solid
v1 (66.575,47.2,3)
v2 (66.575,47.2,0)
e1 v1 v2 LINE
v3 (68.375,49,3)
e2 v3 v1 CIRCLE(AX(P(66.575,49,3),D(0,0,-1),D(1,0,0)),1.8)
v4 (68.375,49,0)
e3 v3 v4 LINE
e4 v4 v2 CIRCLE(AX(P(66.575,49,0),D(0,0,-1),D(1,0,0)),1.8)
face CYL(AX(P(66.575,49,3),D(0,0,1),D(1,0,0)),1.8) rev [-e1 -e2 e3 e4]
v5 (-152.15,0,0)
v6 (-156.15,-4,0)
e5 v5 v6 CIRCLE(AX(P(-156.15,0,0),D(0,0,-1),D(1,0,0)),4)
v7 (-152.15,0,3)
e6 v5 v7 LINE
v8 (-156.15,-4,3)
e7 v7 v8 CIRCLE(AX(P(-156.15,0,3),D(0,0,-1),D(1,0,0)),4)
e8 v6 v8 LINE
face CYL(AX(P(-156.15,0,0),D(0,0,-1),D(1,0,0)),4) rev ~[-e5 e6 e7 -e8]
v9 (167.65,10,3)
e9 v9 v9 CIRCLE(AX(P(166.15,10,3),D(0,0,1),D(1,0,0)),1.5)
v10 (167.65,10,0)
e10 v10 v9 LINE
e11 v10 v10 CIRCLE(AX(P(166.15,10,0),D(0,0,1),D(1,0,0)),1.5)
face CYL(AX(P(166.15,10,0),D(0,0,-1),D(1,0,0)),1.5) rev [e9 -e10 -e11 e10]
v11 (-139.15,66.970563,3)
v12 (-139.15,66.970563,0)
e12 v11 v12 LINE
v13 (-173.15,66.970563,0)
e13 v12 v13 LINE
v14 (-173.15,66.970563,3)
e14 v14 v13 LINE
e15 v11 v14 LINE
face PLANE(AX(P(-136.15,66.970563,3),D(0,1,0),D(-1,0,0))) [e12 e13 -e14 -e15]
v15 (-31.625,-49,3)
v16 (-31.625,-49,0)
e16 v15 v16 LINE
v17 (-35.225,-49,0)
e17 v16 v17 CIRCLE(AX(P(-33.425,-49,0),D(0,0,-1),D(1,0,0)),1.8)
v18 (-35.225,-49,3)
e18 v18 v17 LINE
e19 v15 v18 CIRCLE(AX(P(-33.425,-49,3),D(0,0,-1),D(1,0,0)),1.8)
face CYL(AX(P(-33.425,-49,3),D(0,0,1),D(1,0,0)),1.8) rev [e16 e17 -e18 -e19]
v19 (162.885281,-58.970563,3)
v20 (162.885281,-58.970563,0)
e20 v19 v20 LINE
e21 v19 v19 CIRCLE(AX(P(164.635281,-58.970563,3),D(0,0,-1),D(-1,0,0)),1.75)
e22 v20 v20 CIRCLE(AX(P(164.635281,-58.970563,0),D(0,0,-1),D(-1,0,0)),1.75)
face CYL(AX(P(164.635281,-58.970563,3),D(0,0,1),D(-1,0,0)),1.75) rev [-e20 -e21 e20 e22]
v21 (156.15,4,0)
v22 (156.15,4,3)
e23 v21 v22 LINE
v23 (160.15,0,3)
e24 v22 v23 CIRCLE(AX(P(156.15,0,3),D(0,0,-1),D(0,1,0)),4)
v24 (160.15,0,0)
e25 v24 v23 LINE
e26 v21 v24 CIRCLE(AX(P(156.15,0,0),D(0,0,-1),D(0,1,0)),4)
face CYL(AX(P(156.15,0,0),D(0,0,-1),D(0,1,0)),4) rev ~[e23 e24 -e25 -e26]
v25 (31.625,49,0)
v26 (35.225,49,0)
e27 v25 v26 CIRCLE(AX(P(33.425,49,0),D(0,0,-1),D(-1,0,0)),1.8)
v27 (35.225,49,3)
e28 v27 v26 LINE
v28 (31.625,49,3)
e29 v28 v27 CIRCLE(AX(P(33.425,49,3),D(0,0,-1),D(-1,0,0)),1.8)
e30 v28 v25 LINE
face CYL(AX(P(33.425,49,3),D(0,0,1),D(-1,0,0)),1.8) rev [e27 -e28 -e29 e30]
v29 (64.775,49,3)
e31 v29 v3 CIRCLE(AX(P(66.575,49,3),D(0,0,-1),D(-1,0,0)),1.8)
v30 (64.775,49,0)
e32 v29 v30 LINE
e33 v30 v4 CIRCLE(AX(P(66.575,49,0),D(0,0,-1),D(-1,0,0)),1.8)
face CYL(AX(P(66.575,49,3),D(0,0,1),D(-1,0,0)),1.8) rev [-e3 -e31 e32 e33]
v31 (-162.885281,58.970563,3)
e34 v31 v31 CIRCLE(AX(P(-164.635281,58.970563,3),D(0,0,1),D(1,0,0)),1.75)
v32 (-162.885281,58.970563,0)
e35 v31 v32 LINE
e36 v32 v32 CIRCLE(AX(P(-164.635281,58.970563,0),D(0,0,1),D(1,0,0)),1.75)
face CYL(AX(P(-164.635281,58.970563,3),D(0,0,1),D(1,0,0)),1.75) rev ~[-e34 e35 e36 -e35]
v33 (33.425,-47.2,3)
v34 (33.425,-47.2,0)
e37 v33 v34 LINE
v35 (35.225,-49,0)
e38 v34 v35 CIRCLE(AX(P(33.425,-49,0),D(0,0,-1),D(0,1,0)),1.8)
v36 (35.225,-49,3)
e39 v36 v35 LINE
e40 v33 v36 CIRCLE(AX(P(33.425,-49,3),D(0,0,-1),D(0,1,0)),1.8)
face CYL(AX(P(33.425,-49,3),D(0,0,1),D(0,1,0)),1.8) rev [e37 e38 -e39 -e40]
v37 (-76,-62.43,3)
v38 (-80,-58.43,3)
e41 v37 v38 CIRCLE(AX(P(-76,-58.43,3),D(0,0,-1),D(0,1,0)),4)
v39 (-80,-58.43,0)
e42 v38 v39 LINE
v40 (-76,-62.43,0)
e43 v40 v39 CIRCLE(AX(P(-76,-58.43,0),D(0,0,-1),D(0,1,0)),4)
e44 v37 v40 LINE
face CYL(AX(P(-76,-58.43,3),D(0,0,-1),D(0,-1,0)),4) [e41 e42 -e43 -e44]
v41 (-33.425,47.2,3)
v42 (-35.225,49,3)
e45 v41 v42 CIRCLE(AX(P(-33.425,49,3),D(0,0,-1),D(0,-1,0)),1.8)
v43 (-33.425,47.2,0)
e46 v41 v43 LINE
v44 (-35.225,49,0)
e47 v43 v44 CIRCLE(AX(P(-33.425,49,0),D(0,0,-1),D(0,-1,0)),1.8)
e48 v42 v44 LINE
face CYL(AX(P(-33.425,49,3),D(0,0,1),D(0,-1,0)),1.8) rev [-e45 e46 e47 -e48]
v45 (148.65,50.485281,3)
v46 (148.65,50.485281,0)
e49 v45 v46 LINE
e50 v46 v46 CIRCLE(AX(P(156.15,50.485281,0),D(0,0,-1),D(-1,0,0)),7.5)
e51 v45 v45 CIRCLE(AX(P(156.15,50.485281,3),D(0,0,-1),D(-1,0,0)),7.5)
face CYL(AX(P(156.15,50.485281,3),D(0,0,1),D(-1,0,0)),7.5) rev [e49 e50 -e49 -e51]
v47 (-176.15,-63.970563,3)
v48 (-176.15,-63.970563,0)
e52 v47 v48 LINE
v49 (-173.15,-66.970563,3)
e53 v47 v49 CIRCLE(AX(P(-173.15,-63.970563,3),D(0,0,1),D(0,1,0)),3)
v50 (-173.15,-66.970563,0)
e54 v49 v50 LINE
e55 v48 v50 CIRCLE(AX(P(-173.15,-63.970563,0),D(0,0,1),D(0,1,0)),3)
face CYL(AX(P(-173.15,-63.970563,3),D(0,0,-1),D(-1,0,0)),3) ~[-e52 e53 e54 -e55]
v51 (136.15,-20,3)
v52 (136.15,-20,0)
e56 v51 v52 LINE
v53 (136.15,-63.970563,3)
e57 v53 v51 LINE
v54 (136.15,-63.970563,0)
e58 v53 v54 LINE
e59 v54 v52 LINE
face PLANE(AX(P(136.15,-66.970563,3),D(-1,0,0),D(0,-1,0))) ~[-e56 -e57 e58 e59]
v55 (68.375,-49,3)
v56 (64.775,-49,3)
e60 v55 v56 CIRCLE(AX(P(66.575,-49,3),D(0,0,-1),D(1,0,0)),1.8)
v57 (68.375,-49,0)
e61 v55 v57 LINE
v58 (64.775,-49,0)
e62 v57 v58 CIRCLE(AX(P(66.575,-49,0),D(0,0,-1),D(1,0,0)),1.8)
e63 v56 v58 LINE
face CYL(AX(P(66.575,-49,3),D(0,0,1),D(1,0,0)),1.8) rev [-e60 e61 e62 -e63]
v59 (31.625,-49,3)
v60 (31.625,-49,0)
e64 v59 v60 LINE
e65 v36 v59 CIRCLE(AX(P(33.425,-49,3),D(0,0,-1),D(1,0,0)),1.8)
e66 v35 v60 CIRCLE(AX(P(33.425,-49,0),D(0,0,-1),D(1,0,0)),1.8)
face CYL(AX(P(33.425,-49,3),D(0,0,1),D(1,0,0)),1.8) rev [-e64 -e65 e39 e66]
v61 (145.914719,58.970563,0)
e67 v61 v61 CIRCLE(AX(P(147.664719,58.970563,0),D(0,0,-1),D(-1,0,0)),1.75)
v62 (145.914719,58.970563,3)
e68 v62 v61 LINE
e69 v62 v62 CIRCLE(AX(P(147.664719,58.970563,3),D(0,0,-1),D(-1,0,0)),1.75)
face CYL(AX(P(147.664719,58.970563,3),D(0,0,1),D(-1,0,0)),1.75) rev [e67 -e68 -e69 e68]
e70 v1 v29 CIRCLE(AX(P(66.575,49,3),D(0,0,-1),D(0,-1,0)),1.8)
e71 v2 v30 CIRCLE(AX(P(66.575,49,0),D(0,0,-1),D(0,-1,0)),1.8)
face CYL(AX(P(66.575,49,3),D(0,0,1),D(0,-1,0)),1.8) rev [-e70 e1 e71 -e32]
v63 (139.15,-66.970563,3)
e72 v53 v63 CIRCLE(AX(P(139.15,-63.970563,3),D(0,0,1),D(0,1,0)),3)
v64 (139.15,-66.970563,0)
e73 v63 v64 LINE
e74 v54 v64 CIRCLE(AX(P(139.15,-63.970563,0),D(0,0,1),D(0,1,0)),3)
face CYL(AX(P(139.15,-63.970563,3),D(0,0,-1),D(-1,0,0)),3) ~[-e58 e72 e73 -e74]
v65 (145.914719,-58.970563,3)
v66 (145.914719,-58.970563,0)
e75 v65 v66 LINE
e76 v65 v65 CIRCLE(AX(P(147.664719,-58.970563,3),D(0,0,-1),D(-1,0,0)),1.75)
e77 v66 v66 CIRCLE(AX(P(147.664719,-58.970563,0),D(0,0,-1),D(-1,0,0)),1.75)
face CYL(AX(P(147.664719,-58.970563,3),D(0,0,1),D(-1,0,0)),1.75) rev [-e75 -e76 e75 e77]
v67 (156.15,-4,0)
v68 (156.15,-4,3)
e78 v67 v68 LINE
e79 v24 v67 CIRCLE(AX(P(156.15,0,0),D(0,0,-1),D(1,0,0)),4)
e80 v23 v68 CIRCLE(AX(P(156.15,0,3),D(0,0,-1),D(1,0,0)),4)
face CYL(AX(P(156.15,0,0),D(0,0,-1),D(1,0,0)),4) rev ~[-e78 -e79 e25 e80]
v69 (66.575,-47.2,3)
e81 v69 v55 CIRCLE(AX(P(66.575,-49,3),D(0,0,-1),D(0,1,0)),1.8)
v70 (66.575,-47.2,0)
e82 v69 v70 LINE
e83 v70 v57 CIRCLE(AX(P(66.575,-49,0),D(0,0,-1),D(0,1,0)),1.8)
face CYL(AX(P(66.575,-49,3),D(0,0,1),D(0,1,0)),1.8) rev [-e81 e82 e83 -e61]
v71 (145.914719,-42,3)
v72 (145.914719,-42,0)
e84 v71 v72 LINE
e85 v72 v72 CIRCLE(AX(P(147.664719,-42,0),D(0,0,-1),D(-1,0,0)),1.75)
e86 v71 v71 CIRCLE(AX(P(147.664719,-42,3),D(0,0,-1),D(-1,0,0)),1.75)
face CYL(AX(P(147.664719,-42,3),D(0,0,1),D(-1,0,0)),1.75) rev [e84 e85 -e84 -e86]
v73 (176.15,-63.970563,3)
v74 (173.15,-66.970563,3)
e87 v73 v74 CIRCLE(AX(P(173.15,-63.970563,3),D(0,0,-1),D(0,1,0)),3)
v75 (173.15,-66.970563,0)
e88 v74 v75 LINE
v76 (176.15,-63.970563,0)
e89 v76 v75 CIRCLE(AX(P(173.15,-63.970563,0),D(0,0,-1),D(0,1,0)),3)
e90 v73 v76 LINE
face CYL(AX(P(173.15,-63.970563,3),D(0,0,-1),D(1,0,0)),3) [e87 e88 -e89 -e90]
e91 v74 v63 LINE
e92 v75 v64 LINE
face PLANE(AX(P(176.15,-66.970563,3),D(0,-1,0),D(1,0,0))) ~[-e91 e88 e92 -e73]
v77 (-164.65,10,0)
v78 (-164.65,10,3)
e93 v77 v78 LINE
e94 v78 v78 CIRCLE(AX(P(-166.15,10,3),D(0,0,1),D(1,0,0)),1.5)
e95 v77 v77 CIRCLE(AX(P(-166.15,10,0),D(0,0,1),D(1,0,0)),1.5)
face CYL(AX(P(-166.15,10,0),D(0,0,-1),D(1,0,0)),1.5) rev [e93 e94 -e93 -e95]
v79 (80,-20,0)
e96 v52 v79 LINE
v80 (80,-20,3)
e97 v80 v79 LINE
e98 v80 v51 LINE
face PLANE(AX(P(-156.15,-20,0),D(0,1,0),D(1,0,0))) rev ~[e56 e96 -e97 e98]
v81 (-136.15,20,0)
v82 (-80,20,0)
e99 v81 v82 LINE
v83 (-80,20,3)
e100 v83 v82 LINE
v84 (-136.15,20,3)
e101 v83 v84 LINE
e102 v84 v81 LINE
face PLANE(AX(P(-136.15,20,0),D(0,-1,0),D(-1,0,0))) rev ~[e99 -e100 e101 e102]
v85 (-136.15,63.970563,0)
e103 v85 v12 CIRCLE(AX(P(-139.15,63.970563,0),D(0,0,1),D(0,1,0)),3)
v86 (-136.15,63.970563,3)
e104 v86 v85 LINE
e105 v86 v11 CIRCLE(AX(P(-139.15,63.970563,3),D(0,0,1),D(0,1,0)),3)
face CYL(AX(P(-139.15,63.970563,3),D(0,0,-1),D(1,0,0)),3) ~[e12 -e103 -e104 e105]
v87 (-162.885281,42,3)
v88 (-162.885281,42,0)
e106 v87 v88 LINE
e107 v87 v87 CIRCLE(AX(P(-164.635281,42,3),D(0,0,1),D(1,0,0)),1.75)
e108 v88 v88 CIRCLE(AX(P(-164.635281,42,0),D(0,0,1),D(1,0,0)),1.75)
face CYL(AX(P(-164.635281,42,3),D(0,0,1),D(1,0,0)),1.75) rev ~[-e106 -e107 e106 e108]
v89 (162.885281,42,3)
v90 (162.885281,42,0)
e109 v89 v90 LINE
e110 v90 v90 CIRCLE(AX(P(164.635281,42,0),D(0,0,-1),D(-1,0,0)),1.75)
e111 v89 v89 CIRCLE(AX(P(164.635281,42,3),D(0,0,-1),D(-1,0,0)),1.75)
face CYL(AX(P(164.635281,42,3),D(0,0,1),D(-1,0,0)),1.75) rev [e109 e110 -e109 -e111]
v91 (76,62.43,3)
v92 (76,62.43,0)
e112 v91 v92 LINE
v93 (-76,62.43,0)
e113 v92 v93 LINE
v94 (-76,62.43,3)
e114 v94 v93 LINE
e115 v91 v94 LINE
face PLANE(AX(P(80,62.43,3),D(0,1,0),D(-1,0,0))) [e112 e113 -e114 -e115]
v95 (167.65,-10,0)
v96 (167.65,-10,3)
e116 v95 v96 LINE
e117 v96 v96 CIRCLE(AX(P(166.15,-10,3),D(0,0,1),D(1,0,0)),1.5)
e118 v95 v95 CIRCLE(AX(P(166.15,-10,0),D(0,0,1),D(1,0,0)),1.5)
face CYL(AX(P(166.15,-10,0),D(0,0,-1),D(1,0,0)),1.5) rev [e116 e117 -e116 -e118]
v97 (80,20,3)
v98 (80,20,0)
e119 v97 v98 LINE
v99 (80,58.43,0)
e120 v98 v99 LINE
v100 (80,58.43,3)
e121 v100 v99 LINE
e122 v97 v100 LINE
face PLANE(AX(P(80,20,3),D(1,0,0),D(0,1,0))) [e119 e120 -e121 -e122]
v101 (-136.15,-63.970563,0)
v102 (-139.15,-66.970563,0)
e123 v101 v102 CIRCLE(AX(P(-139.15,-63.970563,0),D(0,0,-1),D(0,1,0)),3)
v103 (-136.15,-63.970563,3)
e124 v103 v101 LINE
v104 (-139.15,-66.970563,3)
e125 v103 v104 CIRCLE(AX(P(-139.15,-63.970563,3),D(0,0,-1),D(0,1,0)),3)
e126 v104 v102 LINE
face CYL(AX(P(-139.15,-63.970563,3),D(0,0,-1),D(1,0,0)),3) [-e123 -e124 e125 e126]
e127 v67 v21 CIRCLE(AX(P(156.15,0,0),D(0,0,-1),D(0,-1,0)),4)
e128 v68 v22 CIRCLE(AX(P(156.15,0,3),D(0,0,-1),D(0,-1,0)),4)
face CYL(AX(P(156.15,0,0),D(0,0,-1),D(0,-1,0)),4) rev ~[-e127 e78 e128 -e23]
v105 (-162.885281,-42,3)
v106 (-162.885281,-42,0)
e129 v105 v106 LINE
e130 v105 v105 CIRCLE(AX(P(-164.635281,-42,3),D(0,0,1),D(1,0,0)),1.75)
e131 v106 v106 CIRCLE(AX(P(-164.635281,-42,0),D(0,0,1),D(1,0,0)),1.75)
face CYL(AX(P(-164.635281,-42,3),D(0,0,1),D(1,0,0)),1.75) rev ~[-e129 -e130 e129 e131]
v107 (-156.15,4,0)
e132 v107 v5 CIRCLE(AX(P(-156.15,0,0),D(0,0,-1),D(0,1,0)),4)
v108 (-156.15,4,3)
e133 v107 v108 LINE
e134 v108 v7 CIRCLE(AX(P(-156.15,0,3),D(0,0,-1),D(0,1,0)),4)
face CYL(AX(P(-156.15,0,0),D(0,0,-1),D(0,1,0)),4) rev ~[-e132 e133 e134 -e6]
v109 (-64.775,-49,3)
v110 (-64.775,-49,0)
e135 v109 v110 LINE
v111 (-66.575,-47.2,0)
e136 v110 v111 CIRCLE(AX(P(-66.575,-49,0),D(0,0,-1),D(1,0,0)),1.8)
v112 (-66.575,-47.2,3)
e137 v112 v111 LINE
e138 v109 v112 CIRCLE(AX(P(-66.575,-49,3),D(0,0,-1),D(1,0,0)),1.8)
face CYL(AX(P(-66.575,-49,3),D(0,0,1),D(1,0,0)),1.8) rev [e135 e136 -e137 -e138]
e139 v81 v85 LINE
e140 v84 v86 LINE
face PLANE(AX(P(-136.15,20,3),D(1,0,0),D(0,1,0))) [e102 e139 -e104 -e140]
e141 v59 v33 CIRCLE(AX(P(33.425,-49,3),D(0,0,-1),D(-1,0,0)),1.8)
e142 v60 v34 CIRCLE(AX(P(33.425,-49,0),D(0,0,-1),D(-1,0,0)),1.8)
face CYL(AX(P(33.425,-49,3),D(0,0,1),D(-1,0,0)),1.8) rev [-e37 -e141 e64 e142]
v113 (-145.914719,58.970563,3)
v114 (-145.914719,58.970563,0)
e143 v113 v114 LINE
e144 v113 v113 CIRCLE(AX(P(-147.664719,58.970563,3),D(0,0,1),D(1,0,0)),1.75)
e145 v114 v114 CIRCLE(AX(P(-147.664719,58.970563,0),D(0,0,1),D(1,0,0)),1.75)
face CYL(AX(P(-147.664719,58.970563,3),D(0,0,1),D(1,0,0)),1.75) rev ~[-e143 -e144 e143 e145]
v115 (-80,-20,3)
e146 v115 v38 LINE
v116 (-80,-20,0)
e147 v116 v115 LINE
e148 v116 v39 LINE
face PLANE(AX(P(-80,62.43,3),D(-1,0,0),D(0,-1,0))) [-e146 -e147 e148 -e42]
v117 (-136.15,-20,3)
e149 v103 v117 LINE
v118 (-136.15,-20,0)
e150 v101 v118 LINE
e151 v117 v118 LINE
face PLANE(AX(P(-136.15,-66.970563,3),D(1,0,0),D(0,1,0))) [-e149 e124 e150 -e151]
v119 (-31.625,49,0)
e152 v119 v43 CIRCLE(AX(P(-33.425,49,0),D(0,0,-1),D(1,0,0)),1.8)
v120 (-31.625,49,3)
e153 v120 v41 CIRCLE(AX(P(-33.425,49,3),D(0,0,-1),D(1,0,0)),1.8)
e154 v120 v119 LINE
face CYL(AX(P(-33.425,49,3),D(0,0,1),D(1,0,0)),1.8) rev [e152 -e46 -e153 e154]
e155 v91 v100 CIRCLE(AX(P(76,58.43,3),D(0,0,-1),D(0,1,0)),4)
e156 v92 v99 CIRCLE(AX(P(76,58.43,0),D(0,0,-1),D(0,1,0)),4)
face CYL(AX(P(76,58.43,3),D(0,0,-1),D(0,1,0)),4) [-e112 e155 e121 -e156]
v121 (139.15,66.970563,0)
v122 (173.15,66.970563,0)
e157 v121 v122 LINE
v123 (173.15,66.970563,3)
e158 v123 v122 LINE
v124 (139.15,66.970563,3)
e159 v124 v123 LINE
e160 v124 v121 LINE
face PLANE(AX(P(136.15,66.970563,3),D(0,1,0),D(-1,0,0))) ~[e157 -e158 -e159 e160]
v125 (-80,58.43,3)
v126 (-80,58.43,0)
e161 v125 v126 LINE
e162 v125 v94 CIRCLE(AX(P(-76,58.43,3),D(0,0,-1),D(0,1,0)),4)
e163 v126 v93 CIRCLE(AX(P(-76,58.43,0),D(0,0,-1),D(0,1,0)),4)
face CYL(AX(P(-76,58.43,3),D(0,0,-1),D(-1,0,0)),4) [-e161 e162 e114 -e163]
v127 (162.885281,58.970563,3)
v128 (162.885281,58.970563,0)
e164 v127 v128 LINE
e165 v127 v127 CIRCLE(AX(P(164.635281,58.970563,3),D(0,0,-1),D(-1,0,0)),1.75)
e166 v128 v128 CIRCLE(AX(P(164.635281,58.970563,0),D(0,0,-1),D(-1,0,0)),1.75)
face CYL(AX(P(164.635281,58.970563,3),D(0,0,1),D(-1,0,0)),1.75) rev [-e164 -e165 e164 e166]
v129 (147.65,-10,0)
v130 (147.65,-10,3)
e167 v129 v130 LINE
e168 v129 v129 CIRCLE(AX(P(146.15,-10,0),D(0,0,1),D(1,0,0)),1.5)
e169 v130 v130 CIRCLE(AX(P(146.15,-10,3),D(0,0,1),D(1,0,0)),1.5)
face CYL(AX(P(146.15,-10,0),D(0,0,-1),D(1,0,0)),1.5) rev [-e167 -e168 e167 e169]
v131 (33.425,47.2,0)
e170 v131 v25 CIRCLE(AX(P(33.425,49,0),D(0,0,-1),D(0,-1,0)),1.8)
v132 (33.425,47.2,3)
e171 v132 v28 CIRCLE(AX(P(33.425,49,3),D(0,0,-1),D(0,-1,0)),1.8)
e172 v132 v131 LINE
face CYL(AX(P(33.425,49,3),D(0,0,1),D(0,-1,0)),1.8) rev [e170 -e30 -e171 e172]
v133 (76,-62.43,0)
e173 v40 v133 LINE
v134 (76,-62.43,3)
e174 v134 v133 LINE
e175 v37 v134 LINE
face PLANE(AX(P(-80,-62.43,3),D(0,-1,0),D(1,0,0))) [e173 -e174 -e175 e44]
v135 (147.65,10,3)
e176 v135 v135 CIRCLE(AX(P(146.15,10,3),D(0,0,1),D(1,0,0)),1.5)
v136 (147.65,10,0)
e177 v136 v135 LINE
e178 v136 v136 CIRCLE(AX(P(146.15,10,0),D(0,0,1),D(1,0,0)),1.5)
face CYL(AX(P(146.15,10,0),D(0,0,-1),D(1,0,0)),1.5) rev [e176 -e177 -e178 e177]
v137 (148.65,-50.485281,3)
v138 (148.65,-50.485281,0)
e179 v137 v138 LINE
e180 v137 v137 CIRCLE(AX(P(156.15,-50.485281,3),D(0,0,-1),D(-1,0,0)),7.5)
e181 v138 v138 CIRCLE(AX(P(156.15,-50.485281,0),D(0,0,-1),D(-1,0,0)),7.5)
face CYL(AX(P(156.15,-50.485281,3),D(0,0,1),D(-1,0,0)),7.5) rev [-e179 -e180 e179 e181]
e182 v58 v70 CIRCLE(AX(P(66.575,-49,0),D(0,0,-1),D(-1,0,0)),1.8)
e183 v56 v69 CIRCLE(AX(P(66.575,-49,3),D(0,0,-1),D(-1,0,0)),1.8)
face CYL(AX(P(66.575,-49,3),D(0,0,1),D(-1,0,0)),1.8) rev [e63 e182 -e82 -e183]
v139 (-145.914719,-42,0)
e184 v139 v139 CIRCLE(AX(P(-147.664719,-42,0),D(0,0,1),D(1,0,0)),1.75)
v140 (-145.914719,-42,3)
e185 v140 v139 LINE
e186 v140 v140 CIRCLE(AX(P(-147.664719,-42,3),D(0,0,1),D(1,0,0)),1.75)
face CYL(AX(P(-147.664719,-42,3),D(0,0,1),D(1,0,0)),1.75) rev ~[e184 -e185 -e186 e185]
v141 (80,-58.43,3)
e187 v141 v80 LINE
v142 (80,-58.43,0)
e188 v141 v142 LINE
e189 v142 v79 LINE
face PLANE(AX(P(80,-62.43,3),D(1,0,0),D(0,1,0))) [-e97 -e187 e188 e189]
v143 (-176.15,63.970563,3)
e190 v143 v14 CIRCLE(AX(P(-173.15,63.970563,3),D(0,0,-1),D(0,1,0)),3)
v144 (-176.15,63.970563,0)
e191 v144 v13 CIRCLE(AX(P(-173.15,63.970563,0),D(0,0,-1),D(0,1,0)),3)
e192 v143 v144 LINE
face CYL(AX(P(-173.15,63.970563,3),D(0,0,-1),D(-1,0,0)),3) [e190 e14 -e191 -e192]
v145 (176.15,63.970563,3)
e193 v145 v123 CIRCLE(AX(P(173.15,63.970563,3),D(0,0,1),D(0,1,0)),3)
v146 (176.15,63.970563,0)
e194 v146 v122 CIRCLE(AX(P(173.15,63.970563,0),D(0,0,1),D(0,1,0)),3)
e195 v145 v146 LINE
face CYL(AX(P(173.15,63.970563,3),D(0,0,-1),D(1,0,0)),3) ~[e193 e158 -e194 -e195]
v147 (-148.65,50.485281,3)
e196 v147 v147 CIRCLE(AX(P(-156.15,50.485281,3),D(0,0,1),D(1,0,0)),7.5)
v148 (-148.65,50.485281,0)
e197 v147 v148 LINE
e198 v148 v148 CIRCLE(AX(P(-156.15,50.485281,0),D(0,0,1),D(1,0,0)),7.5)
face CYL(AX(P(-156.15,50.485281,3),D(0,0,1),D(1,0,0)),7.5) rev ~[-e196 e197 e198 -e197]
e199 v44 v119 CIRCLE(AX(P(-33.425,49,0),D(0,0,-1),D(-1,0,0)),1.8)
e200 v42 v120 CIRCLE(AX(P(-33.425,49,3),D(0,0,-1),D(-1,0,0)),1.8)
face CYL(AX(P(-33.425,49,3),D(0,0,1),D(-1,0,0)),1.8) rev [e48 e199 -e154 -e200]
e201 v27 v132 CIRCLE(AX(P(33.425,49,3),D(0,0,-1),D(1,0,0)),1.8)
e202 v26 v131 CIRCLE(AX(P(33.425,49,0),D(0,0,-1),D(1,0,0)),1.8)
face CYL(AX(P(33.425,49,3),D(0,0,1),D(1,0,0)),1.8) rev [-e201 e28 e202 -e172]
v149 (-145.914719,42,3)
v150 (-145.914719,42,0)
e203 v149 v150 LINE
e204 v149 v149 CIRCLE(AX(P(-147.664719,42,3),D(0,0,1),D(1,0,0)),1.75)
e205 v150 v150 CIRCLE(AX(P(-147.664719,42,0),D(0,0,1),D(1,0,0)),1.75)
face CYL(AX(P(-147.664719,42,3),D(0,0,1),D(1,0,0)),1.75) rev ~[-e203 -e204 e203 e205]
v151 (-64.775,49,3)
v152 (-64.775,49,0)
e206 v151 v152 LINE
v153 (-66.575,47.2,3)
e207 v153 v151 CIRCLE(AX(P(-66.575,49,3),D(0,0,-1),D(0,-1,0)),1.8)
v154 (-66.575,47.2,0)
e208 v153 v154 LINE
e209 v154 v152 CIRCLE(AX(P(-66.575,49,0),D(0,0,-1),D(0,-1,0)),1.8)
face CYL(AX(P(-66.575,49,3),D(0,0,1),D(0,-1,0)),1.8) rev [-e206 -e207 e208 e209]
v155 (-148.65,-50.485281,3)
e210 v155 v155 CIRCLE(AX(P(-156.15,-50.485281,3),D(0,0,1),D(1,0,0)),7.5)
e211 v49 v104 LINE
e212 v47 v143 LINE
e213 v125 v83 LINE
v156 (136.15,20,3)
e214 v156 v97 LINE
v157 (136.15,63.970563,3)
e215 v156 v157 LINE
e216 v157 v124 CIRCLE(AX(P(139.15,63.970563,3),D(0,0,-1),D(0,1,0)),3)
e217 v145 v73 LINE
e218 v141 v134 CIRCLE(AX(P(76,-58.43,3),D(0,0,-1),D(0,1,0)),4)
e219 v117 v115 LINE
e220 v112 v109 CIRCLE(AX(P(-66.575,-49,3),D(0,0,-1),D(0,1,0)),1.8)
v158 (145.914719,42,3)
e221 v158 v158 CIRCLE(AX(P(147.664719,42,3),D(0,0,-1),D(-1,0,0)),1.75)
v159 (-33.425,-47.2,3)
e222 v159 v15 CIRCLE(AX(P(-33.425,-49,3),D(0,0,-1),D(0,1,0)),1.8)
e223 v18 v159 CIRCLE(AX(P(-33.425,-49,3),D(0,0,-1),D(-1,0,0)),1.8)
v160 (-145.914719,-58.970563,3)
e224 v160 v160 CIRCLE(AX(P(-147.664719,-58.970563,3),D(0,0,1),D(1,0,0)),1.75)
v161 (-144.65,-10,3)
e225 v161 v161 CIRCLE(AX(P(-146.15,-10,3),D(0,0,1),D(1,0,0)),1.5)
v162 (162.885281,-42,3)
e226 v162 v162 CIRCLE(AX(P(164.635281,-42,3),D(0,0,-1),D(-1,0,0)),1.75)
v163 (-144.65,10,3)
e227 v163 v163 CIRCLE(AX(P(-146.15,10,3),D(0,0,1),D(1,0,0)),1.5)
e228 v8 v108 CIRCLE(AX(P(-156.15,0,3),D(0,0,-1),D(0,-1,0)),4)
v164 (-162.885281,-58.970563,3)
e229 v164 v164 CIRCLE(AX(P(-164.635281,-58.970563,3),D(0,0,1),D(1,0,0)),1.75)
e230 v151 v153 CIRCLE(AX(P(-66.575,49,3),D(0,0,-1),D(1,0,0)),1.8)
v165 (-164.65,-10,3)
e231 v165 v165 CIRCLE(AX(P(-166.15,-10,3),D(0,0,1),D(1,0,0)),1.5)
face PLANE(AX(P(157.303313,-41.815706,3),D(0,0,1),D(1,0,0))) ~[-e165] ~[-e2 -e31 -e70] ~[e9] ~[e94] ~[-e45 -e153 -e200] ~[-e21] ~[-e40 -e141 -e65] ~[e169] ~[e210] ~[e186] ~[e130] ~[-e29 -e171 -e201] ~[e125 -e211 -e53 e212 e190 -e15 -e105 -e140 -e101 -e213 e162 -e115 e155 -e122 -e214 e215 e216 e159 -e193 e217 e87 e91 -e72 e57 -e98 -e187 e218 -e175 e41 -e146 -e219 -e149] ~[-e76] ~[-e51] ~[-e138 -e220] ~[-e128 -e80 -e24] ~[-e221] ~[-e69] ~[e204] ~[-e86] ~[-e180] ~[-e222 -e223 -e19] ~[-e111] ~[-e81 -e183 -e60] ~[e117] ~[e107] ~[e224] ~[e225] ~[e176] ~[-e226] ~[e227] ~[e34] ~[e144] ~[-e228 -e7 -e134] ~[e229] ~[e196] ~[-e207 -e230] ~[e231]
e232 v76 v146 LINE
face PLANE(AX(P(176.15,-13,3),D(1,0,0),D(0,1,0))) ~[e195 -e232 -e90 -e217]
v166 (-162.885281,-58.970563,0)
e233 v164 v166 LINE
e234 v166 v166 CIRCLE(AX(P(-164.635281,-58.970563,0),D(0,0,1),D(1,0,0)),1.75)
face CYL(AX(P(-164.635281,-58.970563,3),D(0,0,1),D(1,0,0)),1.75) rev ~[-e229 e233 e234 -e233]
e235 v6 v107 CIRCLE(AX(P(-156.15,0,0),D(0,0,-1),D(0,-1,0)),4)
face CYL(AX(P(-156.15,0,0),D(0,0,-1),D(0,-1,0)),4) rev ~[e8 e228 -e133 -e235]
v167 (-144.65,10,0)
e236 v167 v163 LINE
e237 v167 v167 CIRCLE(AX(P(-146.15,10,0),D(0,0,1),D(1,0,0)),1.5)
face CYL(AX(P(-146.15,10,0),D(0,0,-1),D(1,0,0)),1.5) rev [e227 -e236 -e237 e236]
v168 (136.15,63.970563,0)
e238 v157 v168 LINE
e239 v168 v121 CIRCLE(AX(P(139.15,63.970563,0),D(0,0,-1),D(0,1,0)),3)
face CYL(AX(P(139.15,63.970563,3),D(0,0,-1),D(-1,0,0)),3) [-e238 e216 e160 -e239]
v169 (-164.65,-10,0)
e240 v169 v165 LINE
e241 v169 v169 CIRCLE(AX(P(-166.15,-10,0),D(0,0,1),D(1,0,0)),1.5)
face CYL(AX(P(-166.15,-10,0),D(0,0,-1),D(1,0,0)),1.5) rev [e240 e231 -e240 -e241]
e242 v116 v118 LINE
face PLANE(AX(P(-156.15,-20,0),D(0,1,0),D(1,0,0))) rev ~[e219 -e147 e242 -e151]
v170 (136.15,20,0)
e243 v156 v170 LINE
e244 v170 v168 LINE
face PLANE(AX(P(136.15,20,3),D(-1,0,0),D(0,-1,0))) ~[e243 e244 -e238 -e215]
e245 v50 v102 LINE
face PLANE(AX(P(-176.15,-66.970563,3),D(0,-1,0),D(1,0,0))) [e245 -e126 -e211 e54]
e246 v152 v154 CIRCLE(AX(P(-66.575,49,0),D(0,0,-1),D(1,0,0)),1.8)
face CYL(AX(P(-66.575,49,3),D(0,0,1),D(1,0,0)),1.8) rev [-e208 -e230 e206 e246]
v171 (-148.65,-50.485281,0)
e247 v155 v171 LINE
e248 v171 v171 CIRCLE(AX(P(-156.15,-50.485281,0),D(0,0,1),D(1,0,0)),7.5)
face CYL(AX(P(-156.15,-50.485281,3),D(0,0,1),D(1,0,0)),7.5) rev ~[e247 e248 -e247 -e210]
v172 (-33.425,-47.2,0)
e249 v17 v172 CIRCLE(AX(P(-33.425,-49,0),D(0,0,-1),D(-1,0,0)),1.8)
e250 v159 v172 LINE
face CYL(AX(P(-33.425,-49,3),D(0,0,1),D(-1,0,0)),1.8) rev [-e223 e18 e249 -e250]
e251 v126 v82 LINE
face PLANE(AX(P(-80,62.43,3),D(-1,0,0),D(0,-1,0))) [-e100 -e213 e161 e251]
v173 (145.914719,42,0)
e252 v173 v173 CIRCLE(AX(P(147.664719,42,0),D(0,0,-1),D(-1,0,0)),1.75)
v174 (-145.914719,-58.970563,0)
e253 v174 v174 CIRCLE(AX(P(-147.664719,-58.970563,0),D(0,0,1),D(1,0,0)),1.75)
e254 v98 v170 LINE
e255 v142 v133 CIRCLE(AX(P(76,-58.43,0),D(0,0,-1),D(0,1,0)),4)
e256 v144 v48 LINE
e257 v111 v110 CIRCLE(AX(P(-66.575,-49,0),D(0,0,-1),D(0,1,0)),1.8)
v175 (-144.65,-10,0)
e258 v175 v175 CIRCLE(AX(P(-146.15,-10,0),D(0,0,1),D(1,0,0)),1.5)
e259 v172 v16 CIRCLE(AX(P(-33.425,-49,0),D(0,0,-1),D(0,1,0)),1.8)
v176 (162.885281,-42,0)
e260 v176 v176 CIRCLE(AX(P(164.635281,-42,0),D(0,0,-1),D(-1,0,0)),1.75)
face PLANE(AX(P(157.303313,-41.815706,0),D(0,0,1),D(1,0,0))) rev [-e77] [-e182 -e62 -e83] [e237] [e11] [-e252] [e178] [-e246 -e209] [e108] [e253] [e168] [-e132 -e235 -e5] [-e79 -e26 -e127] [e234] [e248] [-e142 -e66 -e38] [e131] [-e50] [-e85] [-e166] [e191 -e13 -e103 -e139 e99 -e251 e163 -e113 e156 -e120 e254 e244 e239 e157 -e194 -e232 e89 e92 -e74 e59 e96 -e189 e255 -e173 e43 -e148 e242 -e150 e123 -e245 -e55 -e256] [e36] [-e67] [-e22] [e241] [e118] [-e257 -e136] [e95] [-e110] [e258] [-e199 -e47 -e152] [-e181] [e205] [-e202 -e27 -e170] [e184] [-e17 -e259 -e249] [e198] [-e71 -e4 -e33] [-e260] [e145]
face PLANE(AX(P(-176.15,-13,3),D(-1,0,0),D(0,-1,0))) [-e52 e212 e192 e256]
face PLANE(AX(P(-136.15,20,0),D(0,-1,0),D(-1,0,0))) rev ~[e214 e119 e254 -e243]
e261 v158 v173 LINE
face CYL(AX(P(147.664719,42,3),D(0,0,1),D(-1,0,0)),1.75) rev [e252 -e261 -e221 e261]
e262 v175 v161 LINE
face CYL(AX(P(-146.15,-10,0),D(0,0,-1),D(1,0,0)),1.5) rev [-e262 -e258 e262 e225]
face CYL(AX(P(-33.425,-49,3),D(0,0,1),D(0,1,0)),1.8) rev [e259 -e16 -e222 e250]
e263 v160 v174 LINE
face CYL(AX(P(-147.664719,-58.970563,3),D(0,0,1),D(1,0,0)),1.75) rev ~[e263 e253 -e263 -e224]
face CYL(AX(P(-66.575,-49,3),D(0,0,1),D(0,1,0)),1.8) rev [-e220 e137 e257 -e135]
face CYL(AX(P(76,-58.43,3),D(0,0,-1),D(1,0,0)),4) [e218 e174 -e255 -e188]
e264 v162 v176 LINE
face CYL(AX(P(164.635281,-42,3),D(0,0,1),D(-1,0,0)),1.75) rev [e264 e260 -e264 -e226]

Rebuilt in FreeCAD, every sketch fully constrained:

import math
import FreeCAD as App
import Part
import Sketcher
from FreeCAD import Vector
Q = App.Units.Quantity


def edges_at(feature, points):
    """Names of the edges that pass closest to the given points."""
    edges = feature.Shape.Edges
    near = lambda p: min(range(len(edges)), key=lambda i: edges[i].distToShape(Part.Vertex(*p))[0])
    return sorted({f"Edge{near(p) + 1}" for p in points})


def add_polygon(sketch, points):
    """Adds a closed chain of lines whose ends are joined by coincident constraints."""
    first, n = sketch.GeometryCount, len(points)
    for a, b in zip(points, points[1:] + points[:1]):
        sketch.addGeometry(Part.LineSegment(App.Vector(*a, 0), App.Vector(*b, 0)), False)
    for i in range(n):
        sketch.addConstraint(Sketcher.Constraint("Coincident", first + i, 2, first + (i + 1) % n, 1))

doc = App.newDocument("Part")
params = doc.addObject("Spreadsheet::Sheet", "Params")
for row, (alias, value) in enumerate([
    ("sketch1_diameter", "3 mm"),
    ("sketch1_radius", "4 mm"),
    ("sketch1_height", "40 mm"),
    ("sketch1_width", "352.3 mm"),
    ("pad1_length", "3 mm"),
    ("fillet_radius", "7 mm"),
    ("sketch2_radius", "1.8 mm"),
    ("sketch2_width", "160 mm"),
    ("sketch2_height", "40 mm"),
    ("sketch2_height2", "42.43 mm"),
    ("pad2_length", "3 mm"),
    ("fillet2_radius", "4 mm"),
    ("sketch3_diameter", "15 mm"),
    ("sketch3_radius", "7 mm"),
    ("sketch3_diameter2", "3.5 mm"),
    ("sketch3_width", "40 mm"),
    ("pad3_length", "3 mm"),
    ("fillet3_radius", "3 mm"),
    ("fillet4_radius", "3 mm"),
], start=1):
    params.set(f"A{row}", alias)
    params.set(f"B{row}", "=" + value)
    params.setAlias(f"B{row}", alias)

body = doc.addObject("PartDesign::Body", "Body")

# Sketch on XY plane
sketch1 = body.newObject("Sketcher::SketchObject", "Sketch")
sketch1.AttachmentSupport = (doc.getObject("XY_Plane"), [""])
sketch1.MapMode = "FlatFace"
add_polygon(sketch1, [(176.2, -20), (176.2, 20), (-176.2, 20), (-176.2, -20)])  # lines 0-3
sketch1.addGeometry(Part.ArcOfCircle(Part.Circle(Vector(156.2, 0, 0), Vector(0, 0, 1), 4), math.radians(-90), math.radians(0)), False)  # 4
sketch1.addGeometry(Part.ArcOfCircle(Part.Circle(Vector(156.2, 0, 0), Vector(0, 0, 1), 4), math.radians(90), math.radians(270)), False)  # 5
sketch1.addGeometry(Part.ArcOfCircle(Part.Circle(Vector(156.2, 0, 0), Vector(0, 0, 1), 4), math.radians(0), math.radians(90)), False)  # 6
sketch1.addGeometry(Part.Circle(Vector(166.2, -10, 0), Vector(0, 0, 1), 1.5), False)  # 7
sketch1.addGeometry(Part.Circle(Vector(166.2, 10, 0), Vector(0, 0, 1), 1.5), False)  # 8
sketch1.addGeometry(Part.Circle(Vector(146.2, -10, 0), Vector(0, 0, 1), 1.5), False)  # 9
sketch1.addGeometry(Part.Circle(Vector(146.2, 10, 0), Vector(0, 0, 1), 1.5), False)  # 10
sketch1.addGeometry(Part.ArcOfCircle(Part.Circle(Vector(-156.1, 0, 0), Vector(0, 0, 1), 4), math.radians(-90), math.radians(0)), False)  # 11
sketch1.addGeometry(Part.ArcOfCircle(Part.Circle(Vector(-156.2, 0, 0), Vector(0, 0, 1), 4), math.radians(90), math.radians(270)), False)  # 12
sketch1.addGeometry(Part.ArcOfCircle(Part.Circle(Vector(-156.1, 0, 0), Vector(0, 0, 1), 4), math.radians(0), math.radians(90)), False)  # 13
sketch1.addGeometry(Part.Circle(Vector(-146.2, 10, 0), Vector(0, 0, 1), 1.5), False)  # 14
sketch1.addGeometry(Part.Circle(Vector(-146.2, -10, 0), Vector(0, 0, 1), 1.5), False)  # 15
sketch1.addGeometry(Part.Circle(Vector(-166.2, 10, 0), Vector(0, 0, 1), 1.5), False)  # 16
sketch1.addGeometry(Part.Circle(Vector(-166.2, -10, 0), Vector(0, 0, 1), 1.5), False)  # 17
sketch1.addConstraint(Sketcher.Constraint("Tangent", 4, 1, 5, 2))
sketch1.addConstraint(Sketcher.Constraint("Tangent", 5, 1, 6, 2))
sketch1.addConstraint(Sketcher.Constraint("Tangent", 6, 1, 4, 2))
sketch1.addConstraint(Sketcher.Constraint("Tangent", 11, 1, 12, 2))
sketch1.addConstraint(Sketcher.Constraint("Tangent", 12, 1, 13, 2))
sketch1.addConstraint(Sketcher.Constraint("Tangent", 13, 1, 11, 2))
sketch1.addConstraint(Sketcher.Constraint("Vertical", 0))
sketch1.addConstraint(Sketcher.Constraint("Horizontal", 1))
sketch1.addConstraint(Sketcher.Constraint("Vertical", 2))
sketch1.addConstraint(Sketcher.Constraint("Horizontal", 3))
sketch1.addConstraint(Sketcher.Constraint("Equal", 7, 8))
sketch1.addConstraint(Sketcher.Constraint("Equal", 8, 9))
sketch1.addConstraint(Sketcher.Constraint("Equal", 9, 10))
sketch1.addConstraint(Sketcher.Constraint("Equal", 6, 11))
sketch1.addConstraint(Sketcher.Constraint("Equal", 10, 14))
sketch1.addConstraint(Sketcher.Constraint("Equal", 14, 15))
sketch1.addConstraint(Sketcher.Constraint("Equal", 15, 16))
sketch1.addConstraint(Sketcher.Constraint("Equal", 16, 17))
sketch1.addConstraint(Sketcher.Constraint("Symmetric", 4, 3, 11, 3, -1, 1))
sketch1.addConstraint(Sketcher.Constraint("Symmetric", 9, 3, 14, 3, -1, 1))
sketch1.addConstraint(Sketcher.Constraint("Symmetric", 10, 3, 15, 3, -1, 1))
sketch1.addConstraint(Sketcher.Constraint("Symmetric", 7, 3, 16, 3, -1, 1))
sketch1.addConstraint(Sketcher.Constraint("Symmetric", 8, 3, 17, 3, -1, 1))
sketch1.addConstraint(Sketcher.Constraint("Symmetric", 0, 2, 2, 2, -1, 1))
sketch1.addConstraint(Sketcher.Constraint("Symmetric", 10, 3, 14, 3, -2))
sketch1.addConstraint(Sketcher.Constraint("Symmetric", 8, 3, 16, 3, -2))
sketch1.addConstraint(Sketcher.Constraint("Symmetric", 4, 1, 11, 1, -2))
sketch1.addConstraint(Sketcher.Constraint("PointOnObject", 6, 1, -1))
sketch1.addConstraint(Sketcher.Constraint("PointOnObject", 13, 1, -1))
sketch1.addConstraint(Sketcher.Constraint("Horizontal", 7, 3, 9, 3))
sketch1.addConstraint(Sketcher.Constraint("Vertical", 6, 3, 4, 1))
sketch1.addConstraint(Sketcher.Constraint("Vertical", 4, 1, 5, 1))
sketch1.addConstraint(Sketcher.Constraint("Vertical", 11, 1, 12, 1))
sketch1.addConstraint(Sketcher.Constraint("Diameter", 7, Q("3 mm")))
sketch1.addConstraint(Sketcher.Constraint("Radius", 4, Q("4 mm")))
sketch1.addConstraint(Sketcher.Constraint("DistanceY", 0, 1, 0, 2, Q("40 mm")))
sketch1.addConstraint(Sketcher.Constraint("DistanceX", 1, 2, 1, 1, Q("352.3 mm")))
sketch1.addConstraint(Sketcher.Constraint("DistanceY", 7, 3, -1, 1, Q("10 mm")))
sketch1.addConstraint(Sketcher.Constraint("DistanceX", 4, 3, 7, 3, Q("10 mm")))
sketch1.addConstraint(Sketcher.Constraint("DistanceX", 9, 3, 4, 3, Q("10 mm")))
sketch1.addConstraint(Sketcher.Constraint("DistanceX", 8, 3, 0, 2, Q("10 mm")))
sketch1.setExpression("Constraints[37]", "Params.sketch1_diameter")
sketch1.setExpression("Constraints[38]", "Params.sketch1_radius")
sketch1.setExpression("Constraints[39]", "Params.sketch1_height")
sketch1.setExpression("Constraints[40]", "Params.sketch1_width")
pad1 = body.newObject("PartDesign::Pad", "Pad")
pad1.Profile = sketch1
pad1.setExpression("Length", "Params.pad1_length")
doc.recompute()

fillet = body.newObject("PartDesign::Fillet", "Fillet")
fillet.Base = (pad1, edges_at(pad1, [
    (176.15, 20, 1.5),
    (176.15, -20, 1.5),
    (-176.15, -20, 1.5),
    (-176.15, 20, 1.5),
]))
fillet.setExpression("Radius", "Params.fillet_radius")

# Sketch on XY plane
sketch2 = body.newObject("Sketcher::SketchObject", "Sketch001")
sketch2.AttachmentSupport = (doc.getObject("XY_Plane"), [""])
sketch2.MapMode = "FlatFace"
sketch2.AttachmentOffset = App.Placement(Vector(0, 0, 3), App.Rotation())
add_polygon(sketch2, [(80, -20), (66.6, -20), (66.6, 20), (80, 20), (80, 62.4), (-80, 62.4), (-80, -62.4), (80, -62.4)])  # lines 0-7
sketch2.addGeometry(Part.ArcOfCircle(Part.Circle(Vector(33.4, -49, 0), Vector(0, 0, 1), 1.8), math.radians(0), math.radians(90)), False)  # 8
sketch2.addGeometry(Part.ArcOfCircle(Part.Circle(Vector(33.4, -49, 0), Vector(0, 0, 1), 1.8), math.radians(180), math.radians(360)), False)  # 9
sketch2.addGeometry(Part.ArcOfCircle(Part.Circle(Vector(33.4, -49, 0), Vector(0, 0, 1), 1.8), math.radians(90), math.radians(180)), False)  # 10
sketch2.addGeometry(Part.ArcOfCircle(Part.Circle(Vector(-33.4, -49, 0), Vector(0, 0, 1), 1.8), math.radians(180), math.radians(360)), False)  # 11
sketch2.addGeometry(Part.ArcOfCircle(Part.Circle(Vector(-33.4, -49, 0), Vector(0, 0, 1), 1.8), math.radians(90), math.radians(180)), False)  # 12
sketch2.addGeometry(Part.ArcOfCircle(Part.Circle(Vector(-33.4, -49, 0), Vector(0, 0, 1), 1.8), math.radians(0), math.radians(90)), False)  # 13
sketch2.addGeometry(Part.ArcOfCircle(Part.Circle(Vector(-66.6, -49, 0), Vector(0, 0, 1), 1.8), math.radians(90), math.radians(360)), False)  # 14
sketch2.addGeometry(Part.ArcOfCircle(Part.Circle(Vector(-66.6, -49, 0), Vector(0, 0, 1), 1.8), math.radians(0), math.radians(90)), False)  # 15
sketch2.addGeometry(Part.ArcOfCircle(Part.Circle(Vector(66.6, -49, 0), Vector(0, 0, 1), 1.8), math.radians(180), math.radians(360)), False)  # 16
sketch2.addGeometry(Part.ArcOfCircle(Part.Circle(Vector(66.6, -49, 0), Vector(0, 0, 1), 1.8), math.radians(90), math.radians(180)), False)  # 17
sketch2.addGeometry(Part.ArcOfCircle(Part.Circle(Vector(66.6, -49, 0), Vector(0, 0, 1), 1.8), math.radians(0), math.radians(90)), False)  # 18
sketch2.addGeometry(Part.ArcOfCircle(Part.Circle(Vector(-66.6, 49, 0), Vector(0, 0, 1), 1.8), math.radians(0), math.radians(270)), False)  # 19
sketch2.addGeometry(Part.ArcOfCircle(Part.Circle(Vector(-66.6, 49, 0), Vector(0, 0, 1), 1.8), math.radians(-90), math.radians(0)), False)  # 20
sketch2.addGeometry(Part.ArcOfCircle(Part.Circle(Vector(-33.4, 49, 0), Vector(0, 0, 1), 1.8), math.radians(180), math.radians(270)), False)  # 21
sketch2.addGeometry(Part.ArcOfCircle(Part.Circle(Vector(-33.4, 49, 0), Vector(0, 0, 1), 1.8), math.radians(0), math.radians(180)), False)  # 22
sketch2.addGeometry(Part.ArcOfCircle(Part.Circle(Vector(-33.4, 49, 0), Vector(0, 0, 1), 1.8), math.radians(-90), math.radians(0)), False)  # 23
sketch2.addGeometry(Part.ArcOfCircle(Part.Circle(Vector(33.4, 49, 0), Vector(0, 0, 1), 1.8), math.radians(0), math.radians(180)), False)  # 24
sketch2.addGeometry(Part.ArcOfCircle(Part.Circle(Vector(33.4, 49, 0), Vector(0, 0, 1), 1.8), math.radians(-90), math.radians(0)), False)  # 25
sketch2.addGeometry(Part.ArcOfCircle(Part.Circle(Vector(33.4, 49, 0), Vector(0, 0, 1), 1.8), math.radians(180), math.radians(270)), False)  # 26
sketch2.addGeometry(Part.ArcOfCircle(Part.Circle(Vector(66.6, 49, 0), Vector(0, 0, 1), 1.8), math.radians(-90), math.radians(0)), False)  # 27
sketch2.addGeometry(Part.ArcOfCircle(Part.Circle(Vector(66.6, 49, 0), Vector(0, 0, 1), 1.8), math.radians(180), math.radians(270)), False)  # 28
sketch2.addGeometry(Part.ArcOfCircle(Part.Circle(Vector(66.6, 49, 0), Vector(0, 0, 1), 1.8), math.radians(0), math.radians(180)), False)  # 29
sketch2.addConstraint(Sketcher.Constraint("Tangent", 8, 1, 9, 2))
sketch2.addConstraint(Sketcher.Constraint("Tangent", 9, 1, 10, 2))
sketch2.addConstraint(Sketcher.Constraint("Tangent", 10, 1, 8, 2))
sketch2.addConstraint(Sketcher.Constraint("Tangent", 11, 1, 12, 2))
sketch2.addConstraint(Sketcher.Constraint("Tangent", 12, 1, 13, 2))
sketch2.addConstraint(Sketcher.Constraint("Tangent", 13, 1, 11, 2))
sketch2.addConstraint(Sketcher.Constraint("Tangent", 14, 1, 15, 2))
sketch2.addConstraint(Sketcher.Constraint("Coincident", 15, 1, 14, 2))
sketch2.addConstraint(Sketcher.Constraint("Tangent", 16, 1, 17, 2))
sketch2.addConstraint(Sketcher.Constraint("Tangent", 17, 1, 18, 2))
sketch2.addConstraint(Sketcher.Constraint("Tangent", 18, 1, 16, 2))
sketch2.addConstraint(Sketcher.Constraint("Tangent", 19, 1, 20, 2))
sketch2.addConstraint(Sketcher.Constraint("Coincident", 20, 1, 19, 2))
sketch2.addConstraint(Sketcher.Constraint("Tangent", 21, 1, 22, 2))
sketch2.addConstraint(Sketcher.Constraint("Tangent", 22, 1, 23, 2))
sketch2.addConstraint(Sketcher.Constraint("Tangent", 23, 1, 21, 2))
sketch2.addConstraint(Sketcher.Constraint("Tangent", 24, 1, 25, 2))
sketch2.addConstraint(Sketcher.Constraint("Tangent", 25, 1, 26, 2))
sketch2.addConstraint(Sketcher.Constraint("Tangent", 26, 1, 24, 2))
sketch2.addConstraint(Sketcher.Constraint("Tangent", 27, 1, 28, 2))
sketch2.addConstraint(Sketcher.Constraint("Tangent", 28, 1, 29, 2))
sketch2.addConstraint(Sketcher.Constraint("Tangent", 29, 1, 27, 2))
sketch2.addConstraint(Sketcher.Constraint("Horizontal", 0))
sketch2.addConstraint(Sketcher.Constraint("Vertical", 1))
sketch2.addConstraint(Sketcher.Constraint("Horizontal", 2))
sketch2.addConstraint(Sketcher.Constraint("Vertical", 3))
sketch2.addConstraint(Sketcher.Constraint("Horizontal", 4))
sketch2.addConstraint(Sketcher.Constraint("Vertical", 5))
sketch2.addConstraint(Sketcher.Constraint("Horizontal", 6))
sketch2.addConstraint(Sketcher.Constraint("Vertical", 7))
sketch2.addConstraint(Sketcher.Constraint("Equal", 10, 11))
sketch2.addConstraint(Sketcher.Constraint("Equal", 13, 14))
sketch2.addConstraint(Sketcher.Constraint("Equal", 15, 16))
sketch2.addConstraint(Sketcher.Constraint("Equal", 18, 19))
sketch2.addConstraint(Sketcher.Constraint("Equal", 20, 21))
sketch2.addConstraint(Sketcher.Constraint("Equal", 23, 24))
sketch2.addConstraint(Sketcher.Constraint("Equal", 26, 27))
sketch2.addConstraint(Sketcher.Constraint("Symmetric", 16, 3, 19, 3, -1, 1))
sketch2.addConstraint(Sketcher.Constraint("Symmetric", 8, 3, 21, 3, -1, 1))
sketch2.addConstraint(Sketcher.Constraint("Symmetric", 11, 3, 24, 3, -1, 1))
sketch2.addConstraint(Sketcher.Constraint("Symmetric", 14, 3, 27, 3, -1, 1))
sketch2.addConstraint(Sketcher.Constraint("Symmetric", 3, 2, 5, 2, -1, 1))
sketch2.addConstraint(Sketcher.Constraint("Symmetric", 8, 3, 11, 3, -2))
sketch2.addConstraint(Sketcher.Constraint("Symmetric", 14, 3, 16, 3, -2))
sketch2.addConstraint(Sketcher.Constraint("Symmetric", 2, 2, 7, 2, -1))
sketch2.addConstraint(Sketcher.Constraint("Horizontal", 13, 3, 14, 3))
sketch2.addConstraint(Sketcher.Constraint("Horizontal", 18, 3, 8, 1))
sketch2.addConstraint(Sketcher.Constraint("Horizontal", 8, 1, 9, 1))
sketch2.addConstraint(Sketcher.Constraint("Horizontal", 9, 1, 11, 1))
sketch2.addConstraint(Sketcher.Constraint("Horizontal", 11, 1, 13, 1))
sketch2.addConstraint(Sketcher.Constraint("Horizontal", 13, 1, 15, 1))
sketch2.addConstraint(Sketcher.Constraint("Horizontal", 15, 1, 16, 1))
sketch2.addConstraint(Sketcher.Constraint("Horizontal", 16, 1, 18, 1))
sketch2.addConstraint(Sketcher.Constraint("Horizontal", 29, 3, 19, 1))
sketch2.addConstraint(Sketcher.Constraint("Horizontal", 19, 1, 21, 1))
sketch2.addConstraint(Sketcher.Constraint("Horizontal", 21, 1, 22, 1))
sketch2.addConstraint(Sketcher.Constraint("Horizontal", 22, 1, 24, 1))
sketch2.addConstraint(Sketcher.Constraint("Horizontal", 24, 1, 26, 1))
sketch2.addConstraint(Sketcher.Constraint("Horizontal", 26, 1, 28, 1))
sketch2.addConstraint(Sketcher.Constraint("Horizontal", 28, 1, 29, 1))
sketch2.addConstraint(Sketcher.Constraint("Vertical", 29, 3, 0, 2))
sketch2.addConstraint(Sketcher.Constraint("Vertical", 26, 3, 10, 1))
sketch2.addConstraint(Sketcher.Constraint("Vertical", 23, 3, 12, 1))
sketch2.addConstraint(Sketcher.Constraint("Vertical", 20, 3, 14, 1))
sketch2.addConstraint(Sketcher.Constraint("Vertical", 1, 2, 17, 1))
sketch2.addConstraint(Sketcher.Constraint("Vertical", 14, 1, 20, 1))
sketch2.addConstraint(Sketcher.Constraint("Vertical", 12, 1, 23, 1))
sketch2.addConstraint(Sketcher.Constraint("Vertical", 10, 1, 25, 1))
sketch2.addConstraint(Sketcher.Constraint("Vertical", 17, 1, 27, 1))
sketch2.addConstraint(Sketcher.Constraint("Radius", 8, Q("1.8 mm")))
sketch2.addConstraint(Sketcher.Constraint("DistanceX", 4, 2, 4, 1, Q("160 mm")))
sketch2.addConstraint(Sketcher.Constraint("DistanceY", 1, 1, 1, 2, Q("40 mm")))
sketch2.addConstraint(Sketcher.Constraint("DistanceY", 8, 3, -1, 1, Q("49 mm")))
sketch2.addConstraint(Sketcher.Constraint("DistanceX", 14, 3, 8, 3, Q("100 mm")))
sketch2.addConstraint(Sketcher.Constraint("DistanceY", 3, 1, 3, 2, Q("42.43 mm")))
sketch2.addConstraint(Sketcher.Constraint("DistanceX", 0, 2, 0, 1, Q("13.425 mm")))
sketch2.setExpression("Constraints[77]", "Params.sketch2_radius")
sketch2.setExpression("Constraints[78]", "Params.sketch2_width")
sketch2.setExpression("Constraints[79]", "Params.sketch2_height")
sketch2.setExpression("Constraints[82]", "Params.sketch2_height2")
pad2 = body.newObject("PartDesign::Pad", "Pad001")
pad2.Profile = sketch2
pad2.setExpression("Length", "Params.pad2_length")
pad2.Reversed = True
doc.recompute()

fillet2 = body.newObject("PartDesign::Fillet", "Fillet001")
fillet2.Base = (pad2, edges_at(pad2, [
    (80, -62.43, 1.5),
    (-80, -62.43, 1.5),
    (-80, 62.43, 1.5),
    (80, 62.43, 1.5),
]))
fillet2.setExpression("Radius", "Params.fillet2_radius")

# Sketch on XY plane
sketch3 = body.newObject("Sketcher::SketchObject", "Sketch002")
sketch3.AttachmentSupport = (doc.getObject("XY_Plane"), [""])
sketch3.MapMode = "FlatFace"
sketch3.AttachmentOffset = App.Placement(Vector(0, 0, 3), App.Rotation())
sketch3.addGeometry(Part.LineSegment(Vector(-176.2, -13, 0), Vector(-176.2, -67, 0)), False)
sketch3.addGeometry(Part.LineSegment(Vector(-176.2, -67, 0), Vector(-136.2, -67, 0)), False)
sketch3.addGeometry(Part.LineSegment(Vector(-136.2, -67, 0), Vector(-136.2, -20, 0)), False)
sketch3.addGeometry(Part.LineSegment(Vector(-136.2, -20, 0), Vector(-169.2, -20, 0)), False)
sketch3.addGeometry(Part.ArcOfCircle(Part.Circle(Vector(-169.1, -13, 0), Vector(0, 0, 1), 7), math.radians(-180), math.radians(-90)), False)
sketch3.addGeometry(Part.Circle(Vector(-164.6, -59, 0), Vector(0, 0, 1), 1.8), False)
sketch3.addGeometry(Part.Circle(Vector(-156.2, -50.5, 0), Vector(0, 0, 1), 7.5), False)
sketch3.addGeometry(Part.Circle(Vector(-147.7, -59, 0), Vector(0, 0, 1), 1.8), False)
sketch3.addGeometry(Part.Circle(Vector(-164.6, -42, 0), Vector(0, 0, 1), 1.8), False)
sketch3.addGeometry(Part.Circle(Vector(-147.7, -42, 0), Vector(0, 0, 1), 1.8), False)
sketch3.addGeometry(Part.LineSegment(Vector(-176.2, 67, 0), Vector(-176.2, 13, 0)), False)
sketch3.addGeometry(Part.ArcOfCircle(Part.Circle(Vector(-169.1, 13, 0), Vector(0, 0, 1), 7), math.radians(90), math.radians(180)), False)
sketch3.addGeometry(Part.LineSegment(Vector(-169.2, 20, 0), Vector(-136.2, 20, 0)), False)
sketch3.addGeometry(Part.LineSegment(Vector(-136.2, 20, 0), Vector(-136.2, 67, 0)), False)
sketch3.addGeometry(Part.LineSegment(Vector(-136.2, 67, 0), Vector(-176.2, 67, 0)), False)
sketch3.addGeometry(Part.Circle(Vector(-164.6, 42, 0), Vector(0, 0, 1), 1.8), False)
sketch3.addGeometry(Part.Circle(Vector(-147.7, 42, 0), Vector(0, 0, 1), 1.8), False)
sketch3.addGeometry(Part.Circle(Vector(-156.2, 50.5, 0), Vector(0, 0, 1), 7.5), False)
sketch3.addGeometry(Part.Circle(Vector(-164.6, 59, 0), Vector(0, 0, 1), 1.8), False)
sketch3.addGeometry(Part.Circle(Vector(-147.7, 59, 0), Vector(0, 0, 1), 1.8), False)
sketch3.addConstraint(Sketcher.Constraint("Coincident", 0, 2, 1, 1))
sketch3.addConstraint(Sketcher.Constraint("Coincident", 1, 2, 2, 1))
sketch3.addConstraint(Sketcher.Constraint("Coincident", 2, 2, 3, 1))
sketch3.addConstraint(Sketcher.Constraint("Tangent", 3, 2, 4, 2))
sketch3.addConstraint(Sketcher.Constraint("Tangent", 4, 1, 0, 1))
sketch3.addConstraint(Sketcher.Constraint("Tangent", 10, 2, 11, 2))
sketch3.addConstraint(Sketcher.Constraint("Tangent", 11, 1, 12, 1))
sketch3.addConstraint(Sketcher.Constraint("Coincident", 12, 2, 13, 1))
sketch3.addConstraint(Sketcher.Constraint("Coincident", 13, 2, 14, 1))
sketch3.addConstraint(Sketcher.Constraint("Coincident", 14, 2, 10, 1))
sketch3.addConstraint(Sketcher.Constraint("Vertical", 0))
sketch3.addConstraint(Sketcher.Constraint("Horizontal", 1))
sketch3.addConstraint(Sketcher.Constraint("Vertical", 2))
sketch3.addConstraint(Sketcher.Constraint("Horizontal", 3))
sketch3.addConstraint(Sketcher.Constraint("Vertical", 10))
sketch3.addConstraint(Sketcher.Constraint("Horizontal", 12))
sketch3.addConstraint(Sketcher.Constraint("Vertical", 13))
sketch3.addConstraint(Sketcher.Constraint("Horizontal", 14))
sketch3.addConstraint(Sketcher.Constraint("Equal", 5, 7))
sketch3.addConstraint(Sketcher.Constraint("Equal", 7, 8))
sketch3.addConstraint(Sketcher.Constraint("Equal", 8, 9))
sketch3.addConstraint(Sketcher.Constraint("Equal", 4, 11))
sketch3.addConstraint(Sketcher.Constraint("Equal", 9, 15))
sketch3.addConstraint(Sketcher.Constraint("Equal", 15, 16))
sketch3.addConstraint(Sketcher.Constraint("Equal", 6, 17))
sketch3.addConstraint(Sketcher.Constraint("Equal", 16, 18))
sketch3.addConstraint(Sketcher.Constraint("Equal", 18, 19))
sketch3.addConstraint(Sketcher.Constraint("Symmetric", 4, 3, 11, 3, -1))
sketch3.addConstraint(Sketcher.Constraint("Symmetric", 8, 3, 15, 3, -1))
sketch3.addConstraint(Sketcher.Constraint("Symmetric", 9, 3, 16, 3, -1))
sketch3.addConstraint(Sketcher.Constraint("Symmetric", 6, 3, 17, 3, -1))
sketch3.addConstraint(Sketcher.Constraint("Symmetric", 5, 3, 18, 3, -1))
sketch3.addConstraint(Sketcher.Constraint("Symmetric", 7, 3, 19, 3, -1))
sketch3.addConstraint(Sketcher.Constraint("Symmetric", 1, 2, 13, 2, -1))
sketch3.addConstraint(Sketcher.Constraint("Horizontal", 5, 3, 7, 3))
sketch3.addConstraint(Sketcher.Constraint("Horizontal", 8, 3, 9, 3))
sketch3.addConstraint(Sketcher.Constraint("Vertical", 5, 3, 8, 3))
sketch3.addConstraint(Sketcher.Constraint("Vertical", 7, 3, 9, 3))
sketch3.addConstraint(Sketcher.Constraint("Diameter", 6, Q("15 mm")))
sketch3.addConstraint(Sketcher.Constraint("Radius", 4, Q("7 mm")))
sketch3.addConstraint(Sketcher.Constraint("Diameter", 5, Q("3.5 mm")))
sketch3.addConstraint(Sketcher.Constraint("DistanceX", 1, 1, 1, 2, Q("40 mm")))
sketch3.addConstraint(Sketcher.Constraint("DistanceY", 4, 3, -1, 1, Q("13 mm")))
sketch3.addConstraint(Sketcher.Constraint("DistanceY", 8, 3, -1, 1, Q("42 mm")))
sketch3.addConstraint(Sketcher.Constraint("DistanceX", 4, 3, 6, 3, Q("13 mm")))
sketch3.addConstraint(Sketcher.Constraint("DistanceY", 0, 2, 5, 3, Q("8 mm")))
sketch3.addConstraint(Sketcher.Constraint("DistanceX", 4, 3, -1, 1, Q("169.15 mm")))
sketch3.addConstraint(Sketcher.Constraint("DistanceY", 0, 2, 0, 1, Q("53.970563 mm")))
sketch3.addConstraint(Sketcher.Constraint("DistanceX", 5, 3, -1, 1, Q("164.635281 mm")))
sketch3.addConstraint(Sketcher.Constraint("DistanceY", 6, 3, -1, 1, Q("50.485281 mm")))
sketch3.addConstraint(Sketcher.Constraint("DistanceX", 7, 3, -1, 1, Q("147.664719 mm")))
sketch3.setExpression("Constraints[38]", "Params.sketch3_diameter")
sketch3.setExpression("Constraints[39]", "Params.sketch3_radius")
sketch3.setExpression("Constraints[40]", "Params.sketch3_diameter2")
sketch3.setExpression("Constraints[41]", "Params.sketch3_width")
pad3 = body.newObject("PartDesign::Pad", "Pad002")
pad3.Profile = sketch3
pad3.setExpression("Length", "Params.pad3_length")
pad3.Reversed = True
doc.recompute()

fillet3 = body.newObject("PartDesign::Fillet", "Fillet002")
fillet3.Base = (pad3, edges_at(pad3, [
    (-176.15, 66.971, 1.5),
    (-136.15, 66.971, 1.5),
    (-136.15, -66.971, 1.5),
    (-176.15, -66.971, 1.5),
]))
fillet3.setExpression("Radius", "Params.fillet3_radius")
doc.recompute()

mirrored = body.newObject("PartDesign::Mirrored", "Mirrored")
mirrored.Originals = [pad3]
mirrored.MirrorPlane = (doc.getObject("YZ_Plane"), [""])
body.Tip = mirrored
doc.recompute()

fillet4 = body.newObject("PartDesign::Fillet", "Fillet003")
fillet4.Base = (mirrored, edges_at(mirrored, [
    (136.15, 66.971, 1.5),
    (176.15, 66.971, 1.5),
    (176.15, -66.971, 1.5),
    (136.15, -66.971, 1.5),
]))
fillet4.setExpression("Radius", "Params.fillet4_radius")

doc.recompute()
